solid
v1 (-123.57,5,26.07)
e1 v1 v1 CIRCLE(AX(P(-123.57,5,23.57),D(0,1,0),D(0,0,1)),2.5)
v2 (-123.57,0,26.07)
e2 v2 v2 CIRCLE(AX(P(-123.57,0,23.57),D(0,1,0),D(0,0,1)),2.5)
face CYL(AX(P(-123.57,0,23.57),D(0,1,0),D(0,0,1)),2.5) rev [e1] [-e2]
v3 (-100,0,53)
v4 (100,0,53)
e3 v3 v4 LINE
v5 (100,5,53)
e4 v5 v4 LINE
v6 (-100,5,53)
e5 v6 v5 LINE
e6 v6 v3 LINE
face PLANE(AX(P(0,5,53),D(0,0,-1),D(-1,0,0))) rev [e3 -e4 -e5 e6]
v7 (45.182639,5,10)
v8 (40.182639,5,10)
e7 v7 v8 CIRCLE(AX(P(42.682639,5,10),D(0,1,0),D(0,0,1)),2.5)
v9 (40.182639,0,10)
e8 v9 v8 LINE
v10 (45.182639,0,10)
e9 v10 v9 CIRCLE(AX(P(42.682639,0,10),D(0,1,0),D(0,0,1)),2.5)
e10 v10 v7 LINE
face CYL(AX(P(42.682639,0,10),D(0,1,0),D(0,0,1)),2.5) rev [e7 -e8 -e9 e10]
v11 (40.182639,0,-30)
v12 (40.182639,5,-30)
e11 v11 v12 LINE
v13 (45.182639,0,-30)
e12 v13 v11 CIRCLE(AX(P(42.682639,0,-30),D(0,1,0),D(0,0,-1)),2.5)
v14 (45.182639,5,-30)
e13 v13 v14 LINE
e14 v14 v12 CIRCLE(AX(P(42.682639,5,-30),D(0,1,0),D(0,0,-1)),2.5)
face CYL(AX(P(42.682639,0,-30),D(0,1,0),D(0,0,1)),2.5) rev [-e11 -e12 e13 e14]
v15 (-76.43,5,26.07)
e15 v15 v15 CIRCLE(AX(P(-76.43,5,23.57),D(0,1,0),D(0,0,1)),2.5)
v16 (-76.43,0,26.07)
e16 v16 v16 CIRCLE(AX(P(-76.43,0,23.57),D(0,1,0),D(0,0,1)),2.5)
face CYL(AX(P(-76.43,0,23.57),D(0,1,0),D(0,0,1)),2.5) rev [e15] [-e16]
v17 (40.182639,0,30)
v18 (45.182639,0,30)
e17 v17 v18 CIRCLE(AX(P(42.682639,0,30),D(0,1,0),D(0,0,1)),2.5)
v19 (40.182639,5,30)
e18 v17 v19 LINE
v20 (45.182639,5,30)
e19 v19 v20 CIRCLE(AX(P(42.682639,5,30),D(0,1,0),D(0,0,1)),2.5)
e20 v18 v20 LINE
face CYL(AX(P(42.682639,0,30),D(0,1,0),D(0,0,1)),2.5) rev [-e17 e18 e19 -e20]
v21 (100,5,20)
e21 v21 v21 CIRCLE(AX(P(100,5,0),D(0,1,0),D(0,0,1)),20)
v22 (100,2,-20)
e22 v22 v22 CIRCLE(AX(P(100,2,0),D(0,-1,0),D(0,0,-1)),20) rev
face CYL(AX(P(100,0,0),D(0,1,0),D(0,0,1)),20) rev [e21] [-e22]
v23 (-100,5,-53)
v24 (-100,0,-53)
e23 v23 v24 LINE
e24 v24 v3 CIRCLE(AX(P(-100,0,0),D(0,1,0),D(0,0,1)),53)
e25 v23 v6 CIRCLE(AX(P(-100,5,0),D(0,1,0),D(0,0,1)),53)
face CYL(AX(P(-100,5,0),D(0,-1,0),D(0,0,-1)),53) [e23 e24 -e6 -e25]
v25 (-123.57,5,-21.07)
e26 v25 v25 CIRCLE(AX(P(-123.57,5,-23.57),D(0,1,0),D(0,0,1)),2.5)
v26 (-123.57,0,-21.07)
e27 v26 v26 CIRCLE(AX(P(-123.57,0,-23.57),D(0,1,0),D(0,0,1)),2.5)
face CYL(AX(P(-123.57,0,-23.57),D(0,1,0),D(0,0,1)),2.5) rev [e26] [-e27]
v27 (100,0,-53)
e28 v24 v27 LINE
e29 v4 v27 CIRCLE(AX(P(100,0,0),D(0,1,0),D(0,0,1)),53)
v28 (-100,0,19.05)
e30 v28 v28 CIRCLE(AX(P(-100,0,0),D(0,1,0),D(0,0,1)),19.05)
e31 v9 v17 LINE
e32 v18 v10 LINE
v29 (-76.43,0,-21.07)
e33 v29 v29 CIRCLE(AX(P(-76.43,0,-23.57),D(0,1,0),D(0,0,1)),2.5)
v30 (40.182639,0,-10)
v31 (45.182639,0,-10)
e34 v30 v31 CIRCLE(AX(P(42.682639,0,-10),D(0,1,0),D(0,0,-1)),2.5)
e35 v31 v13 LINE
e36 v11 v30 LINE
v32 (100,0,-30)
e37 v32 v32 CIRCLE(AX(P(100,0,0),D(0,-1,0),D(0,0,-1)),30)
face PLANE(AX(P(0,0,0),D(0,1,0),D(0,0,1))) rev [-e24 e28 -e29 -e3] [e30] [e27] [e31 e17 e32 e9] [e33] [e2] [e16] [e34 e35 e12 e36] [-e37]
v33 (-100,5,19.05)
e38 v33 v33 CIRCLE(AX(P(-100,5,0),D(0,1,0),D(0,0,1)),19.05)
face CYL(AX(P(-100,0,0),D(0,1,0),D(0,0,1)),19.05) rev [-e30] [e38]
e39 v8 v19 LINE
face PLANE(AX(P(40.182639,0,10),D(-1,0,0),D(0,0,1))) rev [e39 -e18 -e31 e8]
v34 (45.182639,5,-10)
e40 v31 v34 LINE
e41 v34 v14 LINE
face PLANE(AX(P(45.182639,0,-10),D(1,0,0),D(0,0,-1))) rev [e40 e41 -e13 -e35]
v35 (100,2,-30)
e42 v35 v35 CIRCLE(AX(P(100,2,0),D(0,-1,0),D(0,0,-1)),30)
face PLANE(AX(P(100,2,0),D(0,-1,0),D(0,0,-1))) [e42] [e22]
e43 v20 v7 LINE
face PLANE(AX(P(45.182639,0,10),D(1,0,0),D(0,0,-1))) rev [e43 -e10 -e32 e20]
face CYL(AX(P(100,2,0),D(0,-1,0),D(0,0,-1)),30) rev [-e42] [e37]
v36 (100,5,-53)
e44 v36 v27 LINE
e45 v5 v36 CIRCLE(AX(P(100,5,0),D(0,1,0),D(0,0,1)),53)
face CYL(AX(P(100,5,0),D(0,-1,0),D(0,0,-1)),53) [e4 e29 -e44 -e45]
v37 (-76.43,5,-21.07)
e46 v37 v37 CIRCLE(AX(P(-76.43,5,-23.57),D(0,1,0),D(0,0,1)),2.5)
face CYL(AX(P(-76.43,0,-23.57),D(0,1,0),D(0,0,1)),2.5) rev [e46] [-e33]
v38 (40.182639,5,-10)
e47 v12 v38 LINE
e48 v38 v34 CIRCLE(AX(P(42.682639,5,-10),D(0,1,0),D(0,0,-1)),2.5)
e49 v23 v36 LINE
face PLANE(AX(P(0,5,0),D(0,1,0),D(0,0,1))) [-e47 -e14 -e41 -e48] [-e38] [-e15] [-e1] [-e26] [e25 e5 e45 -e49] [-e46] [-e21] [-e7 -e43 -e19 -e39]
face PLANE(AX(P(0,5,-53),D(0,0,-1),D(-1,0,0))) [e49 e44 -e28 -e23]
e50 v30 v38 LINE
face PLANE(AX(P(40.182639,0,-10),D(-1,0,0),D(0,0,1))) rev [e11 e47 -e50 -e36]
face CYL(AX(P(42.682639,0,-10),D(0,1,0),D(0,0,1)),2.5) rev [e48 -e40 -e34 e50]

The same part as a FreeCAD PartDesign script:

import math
import FreeCAD as App
import Part
import Sketcher
Q = App.Units.Quantity

doc = App.newDocument("Part")
body = doc.addObject("PartDesign::Body", "Body")

# Sketch on XZ plane
sketch1 = body.newObject("Sketcher::SketchObject", "Sketch")
sketch1.AttachmentSupport = (doc.getObject("XZ_Plane"), [""])
sketch1.MapMode = "FlatFace"
sketch1.addGeometry([
    Part.LineSegment(App.Vector(-100, 53, 0), App.Vector(100, 53, 0)),  # 0
    Part.ArcOfCircle(Part.Circle(App.Vector(100, 0, 0), App.Vector(0, 0, 1), 53), math.radians(0), math.radians(90)),  # 1
    Part.ArcOfCircle(Part.Circle(App.Vector(100, 0, 0), App.Vector(0, 0, 1), 53), math.radians(-90), math.radians(0)),  # 2
    Part.LineSegment(App.Vector(100, -53, 0), App.Vector(-100, -53, 0)),  # 3
    Part.ArcOfCircle(Part.Circle(App.Vector(-100, 0, 0), App.Vector(0, 0, 1), 53), math.radians(90), math.radians(270)),  # 4
], False)
sketch1.addConstraint([
    Sketcher.Constraint("Tangent", 0, 2, 1, 2),
    Sketcher.Constraint("Tangent", 1, 1, 2, 2),
    Sketcher.Constraint("Tangent", 2, 1, 3, 1),
    Sketcher.Constraint("Tangent", 3, 2, 4, 2),
    Sketcher.Constraint("Tangent", 4, 1, 0, 1),
    Sketcher.Constraint("Horizontal", 0),
    Sketcher.Constraint("Horizontal", 3),
    Sketcher.Constraint("Equal", 1, 2),
    Sketcher.Constraint("Symmetric", 1, 3, 4, 3, -1, 1),
    Sketcher.Constraint("PointOnObject", 1, 1, -1),
    Sketcher.Constraint("Radius", 1, Q("53 mm")),
    Sketcher.Constraint("DistanceX", 0, 1, 0, 2, Q("200 mm")),
])
pad1 = body.newObject("PartDesign::Pad", "Pad")
pad1.Profile = sketch1
pad1.Length = 5
pad1.Reversed = True

# Sketch on XZ plane
sketch2 = body.newObject("Sketcher::SketchObject", "Sketch001")
sketch2.AttachmentSupport = (doc.getObject("XZ_Plane"), [""])
sketch2.MapMode = "FlatFace"
sketch2.AttachmentOffset = App.Placement(App.Vector(0, 0, -5), App.Rotation())
sketch2.addGeometry(Part.Circle(App.Vector(100, 0, 0), App.Vector(0, 0, 1), 20), False)
sketch2.addConstraint([
    Sketcher.Constraint("PointOnObject", 0, 3, -1),
    Sketcher.Constraint("Diameter", 0, Q("40 mm")),
    Sketcher.Constraint("DistanceX", -1, 1, 0, 3, Q("100 mm")),
])
pocket1 = body.newObject("PartDesign::Pocket", "Pocket")
pocket1.Profile = sketch2
pocket1.Type = "ThroughAll"
pocket1.Reversed = True

# Sketch on XZ plane
sketch3 = body.newObject("Sketcher::SketchObject", "Sketch002")
sketch3.AttachmentSupport = (doc.getObject("XZ_Plane"), [""])
sketch3.MapMode = "FlatFace"
sketch3.addGeometry(Part.Circle(App.Vector(100, 0, 0), App.Vector(0, 0, 1), 30), False)
sketch3.addConstraint([
    Sketcher.Constraint("PointOnObject", 0, 3, -1),
    Sketcher.Constraint("Diameter", 0, Q("60 mm")),
    Sketcher.Constraint("DistanceX", -1, 1, 0, 3, Q("100 mm")),
])
pocket2 = body.newObject("PartDesign::Pocket", "Pocket001")
pocket2.Profile = sketch3
pocket2.Length = 2

# Sketch on XZ plane
sketch4 = body.newObject("Sketcher::SketchObject", "Sketch003")
sketch4.AttachmentSupport = (doc.getObject("XZ_Plane"), [""])
sketch4.MapMode = "FlatFace"
sketch4.AttachmentOffset = App.Placement(App.Vector(0, 0, -5), App.Rotation())
sketch4.addGeometry([
    Part.Circle(App.Vector(-123.6, -23.6, 0), App.Vector(0, 0, 1), 2.5),  # 0
    Part.Circle(App.Vector(-76.4, -23.6, 0), App.Vector(0, 0, 1), 2.5),  # 1
    Part.Circle(App.Vector(-76.4, 23.6, 0), App.Vector(0, 0, 1), 2.5),  # 2
    Part.Circle(App.Vector(-123.6, 23.6, 0), App.Vector(0, 0, 1), 2.5),  # 3
    Part.Circle(App.Vector(-100, 0, 0), App.Vector(0, 0, 1), 19.1),  # 4
    Part.LineSegment(App.Vector(45.2, -10, 0), App.Vector(45.2, -30, 0)),  # 5
    Part.ArcOfCircle(Part.Circle(App.Vector(42.7, -30, 0), App.Vector(0, 0, 1), 2.5), math.radians(180), math.radians(360)),  # 6
    Part.LineSegment(App.Vector(40.2, -30, 0), App.Vector(40.2, -10, 0)),  # 7
    Part.ArcOfCircle(Part.Circle(App.Vector(42.7, -10, 0), App.Vector(0, 0, 1), 2.5), math.radians(0), math.radians(180)),  # 8
    Part.LineSegment(App.Vector(40.2, 10, 0), App.Vector(40.2, 30, 0)),  # 9
    Part.ArcOfCircle(Part.Circle(App.Vector(42.7, 30, 0), App.Vector(0, 0, 1), 2.5), math.radians(0), math.radians(180)),  # 10
    Part.LineSegment(App.Vector(45.2, 30, 0), App.Vector(45.2, 10, 0)),  # 11
    Part.ArcOfCircle(Part.Circle(App.Vector(42.7, 10, 0), App.Vector(0, 0, 1), 2.5), math.radians(180), math.radians(360)),  # 12
], False)
sketch4.addConstraint([
    Sketcher.Constraint("Tangent", 5, 2, 6, 2),
    Sketcher.Constraint("Tangent", 6, 1, 7, 1),
    Sketcher.Constraint("Tangent", 7, 2, 8, 2),
    Sketcher.Constraint("Tangent", 8, 1, 5, 1),
    Sketcher.Constraint("Tangent", 9, 2, 10, 2),
    Sketcher.Constraint("Tangent", 10, 1, 11, 1),
    Sketcher.Constraint("Tangent", 11, 2, 12, 2),
    Sketcher.Constraint("Tangent", 12, 1, 9, 1),
    Sketcher.Constraint("Vertical", 5),
    Sketcher.Constraint("Vertical", 7),
    Sketcher.Constraint("Vertical", 9),
    Sketcher.Constraint("Vertical", 11),
    Sketcher.Constraint("Equal", 0, 1),
    Sketcher.Constraint("Equal", 1, 2),
    Sketcher.Constraint("Equal", 2, 3),
    Sketcher.Constraint("Equal", 3, 6),
    Sketcher.Constraint("Equal", 8, 10),
    Sketcher.Constraint("Symmetric", 1, 3, 2, 3, -1),
    Sketcher.Constraint("Symmetric", 0, 3, 3, 3, -1),
    Sketcher.Constraint("Symmetric", 6, 3, 10, 3, -1),
    Sketcher.Constraint("PointOnObject", 4, 3, -1),
    Sketcher.Constraint("Horizontal", 0, 3, 1, 3),
    Sketcher.Constraint("Equal", 7, 9),
    Sketcher.Constraint("Diameter", 0, Q("5 mm")),
    Sketcher.Constraint("Diameter", 4, Q("38.1 mm")),
    Sketcher.Constraint("DistanceY", 5, 2, 5, 1, Q("20 mm")),
    Sketcher.Constraint("DistanceX", 4, 3, -1, 1, Q("100 mm")),
    Sketcher.Constraint("DistanceY", 6, 3, -1, 1, Q("30 mm")),
    Sketcher.Constraint("DistanceX", 0, 3, -1, 1, Q("123.57 mm")),
    Sketcher.Constraint("DistanceY", 0, 3, -1, 1, Q("23.57 mm")),
    Sketcher.Constraint("DistanceX", 1, 3, -1, 1, Q("76.43 mm")),
    Sketcher.Constraint("DistanceX", -1, 1, 6, 3, Q("42.682639 mm")),
])
pocket3 = body.newObject("PartDesign::Pocket", "Pocket002")
pocket3.Profile = sketch4
pocket3.Type = "ThroughAll"
pocket3.Reversed = True

doc.recompute()
